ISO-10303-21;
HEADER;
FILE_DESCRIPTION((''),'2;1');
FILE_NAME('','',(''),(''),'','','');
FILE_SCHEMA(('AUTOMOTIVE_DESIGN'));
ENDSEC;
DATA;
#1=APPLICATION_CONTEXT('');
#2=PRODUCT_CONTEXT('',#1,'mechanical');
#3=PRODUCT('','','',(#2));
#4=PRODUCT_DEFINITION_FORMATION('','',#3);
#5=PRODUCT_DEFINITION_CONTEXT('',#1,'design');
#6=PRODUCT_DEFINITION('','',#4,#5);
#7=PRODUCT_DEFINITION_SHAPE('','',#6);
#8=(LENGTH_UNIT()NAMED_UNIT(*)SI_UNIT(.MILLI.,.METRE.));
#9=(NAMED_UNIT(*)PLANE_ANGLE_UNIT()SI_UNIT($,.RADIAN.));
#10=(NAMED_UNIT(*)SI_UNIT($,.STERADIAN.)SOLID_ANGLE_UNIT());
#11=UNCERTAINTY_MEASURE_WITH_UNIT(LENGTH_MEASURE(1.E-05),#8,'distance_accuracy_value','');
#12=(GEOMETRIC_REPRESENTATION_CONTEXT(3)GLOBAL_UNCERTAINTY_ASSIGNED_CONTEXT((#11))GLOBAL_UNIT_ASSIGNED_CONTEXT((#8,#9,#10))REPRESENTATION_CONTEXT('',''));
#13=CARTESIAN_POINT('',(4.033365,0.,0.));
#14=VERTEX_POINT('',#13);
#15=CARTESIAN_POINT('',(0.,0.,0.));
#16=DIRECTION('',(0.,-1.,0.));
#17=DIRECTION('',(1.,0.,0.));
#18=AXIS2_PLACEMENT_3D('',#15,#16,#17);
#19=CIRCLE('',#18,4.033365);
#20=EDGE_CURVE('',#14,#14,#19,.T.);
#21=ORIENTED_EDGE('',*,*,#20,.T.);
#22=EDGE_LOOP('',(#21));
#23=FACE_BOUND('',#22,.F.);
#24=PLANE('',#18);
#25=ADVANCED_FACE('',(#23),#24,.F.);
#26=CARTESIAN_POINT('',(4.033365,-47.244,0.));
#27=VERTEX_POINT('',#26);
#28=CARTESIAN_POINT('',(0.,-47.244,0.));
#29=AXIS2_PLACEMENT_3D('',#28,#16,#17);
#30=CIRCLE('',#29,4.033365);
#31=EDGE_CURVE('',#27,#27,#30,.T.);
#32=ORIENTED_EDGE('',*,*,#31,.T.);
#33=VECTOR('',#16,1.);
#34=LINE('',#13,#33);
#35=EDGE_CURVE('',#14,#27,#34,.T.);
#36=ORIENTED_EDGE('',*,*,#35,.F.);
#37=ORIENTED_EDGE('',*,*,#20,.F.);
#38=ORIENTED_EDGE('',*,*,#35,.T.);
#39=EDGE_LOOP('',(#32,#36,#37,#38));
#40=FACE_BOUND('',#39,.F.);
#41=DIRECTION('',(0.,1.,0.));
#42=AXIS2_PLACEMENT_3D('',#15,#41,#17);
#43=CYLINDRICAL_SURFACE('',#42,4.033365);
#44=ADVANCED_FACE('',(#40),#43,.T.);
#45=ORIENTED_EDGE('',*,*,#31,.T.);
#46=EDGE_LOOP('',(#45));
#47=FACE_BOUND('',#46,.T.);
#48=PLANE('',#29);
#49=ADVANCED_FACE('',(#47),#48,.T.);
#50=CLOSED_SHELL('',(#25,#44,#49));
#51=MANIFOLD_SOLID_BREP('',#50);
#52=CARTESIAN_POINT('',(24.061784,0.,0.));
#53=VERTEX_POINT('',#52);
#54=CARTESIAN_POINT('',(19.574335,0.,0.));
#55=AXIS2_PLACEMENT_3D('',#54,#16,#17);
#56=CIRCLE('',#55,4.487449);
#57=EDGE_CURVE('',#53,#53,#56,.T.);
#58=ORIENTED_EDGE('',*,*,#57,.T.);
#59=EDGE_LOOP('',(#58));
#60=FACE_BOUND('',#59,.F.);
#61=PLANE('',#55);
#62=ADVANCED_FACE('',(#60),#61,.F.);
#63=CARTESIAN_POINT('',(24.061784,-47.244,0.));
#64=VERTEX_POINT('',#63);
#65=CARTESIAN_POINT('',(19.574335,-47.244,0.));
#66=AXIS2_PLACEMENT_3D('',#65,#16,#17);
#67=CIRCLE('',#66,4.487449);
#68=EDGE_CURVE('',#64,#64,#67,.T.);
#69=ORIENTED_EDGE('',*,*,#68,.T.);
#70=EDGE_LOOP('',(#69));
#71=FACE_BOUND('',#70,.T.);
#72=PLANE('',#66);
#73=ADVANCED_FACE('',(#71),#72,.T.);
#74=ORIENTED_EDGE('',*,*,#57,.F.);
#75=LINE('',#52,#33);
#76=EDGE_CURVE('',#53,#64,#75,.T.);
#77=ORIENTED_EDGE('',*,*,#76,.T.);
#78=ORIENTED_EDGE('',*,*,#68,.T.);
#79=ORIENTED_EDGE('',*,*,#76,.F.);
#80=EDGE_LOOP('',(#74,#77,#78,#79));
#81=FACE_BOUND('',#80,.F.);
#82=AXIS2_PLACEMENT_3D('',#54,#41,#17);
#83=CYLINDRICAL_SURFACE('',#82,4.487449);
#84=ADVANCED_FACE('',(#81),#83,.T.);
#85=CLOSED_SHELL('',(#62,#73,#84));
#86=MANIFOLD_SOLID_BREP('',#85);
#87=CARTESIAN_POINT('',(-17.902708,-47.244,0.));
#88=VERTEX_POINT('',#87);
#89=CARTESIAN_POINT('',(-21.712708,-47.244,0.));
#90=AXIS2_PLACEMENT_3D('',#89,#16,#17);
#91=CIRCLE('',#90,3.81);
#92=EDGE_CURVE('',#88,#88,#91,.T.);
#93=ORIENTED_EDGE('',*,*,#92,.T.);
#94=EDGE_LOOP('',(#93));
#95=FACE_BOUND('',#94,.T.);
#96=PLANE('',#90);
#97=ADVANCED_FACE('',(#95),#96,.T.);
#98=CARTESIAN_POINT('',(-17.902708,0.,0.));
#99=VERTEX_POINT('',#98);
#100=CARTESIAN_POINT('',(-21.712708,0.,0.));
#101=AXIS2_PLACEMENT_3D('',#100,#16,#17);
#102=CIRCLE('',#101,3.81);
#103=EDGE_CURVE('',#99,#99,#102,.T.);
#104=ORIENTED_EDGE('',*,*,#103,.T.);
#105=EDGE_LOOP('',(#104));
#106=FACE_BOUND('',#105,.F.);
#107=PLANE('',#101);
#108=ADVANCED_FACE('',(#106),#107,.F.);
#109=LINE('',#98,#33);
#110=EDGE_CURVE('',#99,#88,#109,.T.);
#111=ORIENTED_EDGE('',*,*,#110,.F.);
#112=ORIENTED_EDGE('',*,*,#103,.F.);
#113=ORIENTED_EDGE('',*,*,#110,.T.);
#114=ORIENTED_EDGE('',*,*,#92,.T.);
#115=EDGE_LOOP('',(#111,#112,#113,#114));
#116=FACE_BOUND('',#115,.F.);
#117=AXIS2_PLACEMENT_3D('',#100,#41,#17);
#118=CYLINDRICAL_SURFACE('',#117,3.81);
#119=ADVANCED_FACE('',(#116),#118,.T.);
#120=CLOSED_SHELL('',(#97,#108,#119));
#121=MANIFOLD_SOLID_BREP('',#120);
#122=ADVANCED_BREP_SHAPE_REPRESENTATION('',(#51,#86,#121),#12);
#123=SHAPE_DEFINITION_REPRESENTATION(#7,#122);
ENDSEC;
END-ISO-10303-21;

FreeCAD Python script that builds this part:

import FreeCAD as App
import Part
import Sketcher

V = App.Vector
Q = App.Units.Quantity

doc = App.newDocument("Part")
body = doc.addObject("PartDesign::Body", "Body")
body.AllowCompound = True

sketch1 = doc.addObject("Sketcher::SketchObject", "Sketch")
body.addObject(sketch1)
sketch1.AttachmentSupport = (doc.XZ_Plane, [""])
sketch1.MapMode = "FlatFace"
sketch1.addGeometry([
    Part.Circle(V(0, 0, 0), V(0, 0, 1), 4.033365),
    Part.Circle(V(-21.712708, 0, 0), V(0, 0, 1), 3.81),
    Part.Circle(V(19.574335, 0, 0), V(0, 0, 1), 4.487449),
], False)
sketch1.addConstraint([
    Sketcher.Constraint("Coincident", 0, 3, -1, 1),
    Sketcher.Constraint("PointOnObject", 1, 3, -1),
    Sketcher.Constraint("PointOnObject", 2, 3, -1),
    Sketcher.Constraint("Diameter", 1, Q("0.3 in")),
    Sketcher.Constraint("Diameter", 0, 8.06673),
    Sketcher.Constraint("Diameter", 2, 8.974898),
    Sketcher.Constraint("DistanceX", 1, 3, -1, 1, 21.712708),
    Sketcher.Constraint("DistanceX", -1, 1, 2, 3, 19.574335),
])
pad1 = doc.addObject("PartDesign::Pad", "Pad")
body.addObject(pad1)
pad1.Profile = sketch1
pad1.Length = Q("1.86 in")

doc.recompute()
